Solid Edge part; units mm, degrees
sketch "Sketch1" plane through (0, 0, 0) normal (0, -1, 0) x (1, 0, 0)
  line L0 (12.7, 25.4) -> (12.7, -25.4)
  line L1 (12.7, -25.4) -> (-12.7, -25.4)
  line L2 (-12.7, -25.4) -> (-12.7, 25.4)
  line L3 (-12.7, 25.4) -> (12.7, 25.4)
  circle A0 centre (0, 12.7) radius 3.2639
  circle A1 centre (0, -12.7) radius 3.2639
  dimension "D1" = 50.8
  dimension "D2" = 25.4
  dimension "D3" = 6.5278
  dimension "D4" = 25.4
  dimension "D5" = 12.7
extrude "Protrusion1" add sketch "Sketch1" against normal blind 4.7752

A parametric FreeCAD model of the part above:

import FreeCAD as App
import Part
import Sketcher
Q = App.Units.Quantity

doc = App.newDocument("Part")
body = doc.addObject("PartDesign::Body", "Body")

# Sketch on XZ plane
sketch1 = doc.addObject("Sketcher::SketchObject", "Sketch")
body.addObject(sketch1)
sketch1.AttachmentSupport = (doc.XZ_Plane, [""])
sketch1.MapMode = "FlatFace"
sketch1.addGeometry([
    Part.LineSegment(App.Vector(12.7, -25.4, 0), App.Vector(12.7, 25.4, 0)),  # 0
    Part.LineSegment(App.Vector(12.7, 25.4, 0), App.Vector(-12.7, 25.4, 0)),  # 1
    Part.LineSegment(App.Vector(-12.7, 25.4, 0), App.Vector(-12.7, -25.4, 0)),  # 2
    Part.LineSegment(App.Vector(-12.7, -25.4, 0), App.Vector(12.7, -25.4, 0)),  # 3
    Part.Circle(App.Vector(0, -12.7, 0), App.Vector(0, 0, 1), 3.3),  # 4
    Part.Circle(App.Vector(0, 12.7, 0), App.Vector(0, 0, 1), 3.3),  # 5
], False)
sketch1.addConstraint([
    Sketcher.Constraint("Coincident", 0, 2, 1, 1),
    Sketcher.Constraint("Coincident", 1, 2, 2, 1),
    Sketcher.Constraint("Coincident", 2, 2, 3, 1),
    Sketcher.Constraint("Coincident", 3, 2, 0, 1),
    Sketcher.Constraint("Vertical", 0),
    Sketcher.Constraint("Horizontal", 1),
    Sketcher.Constraint("Vertical", 2),
    Sketcher.Constraint("Horizontal", 3),
    Sketcher.Constraint("Equal", 4, 5),
    Sketcher.Constraint("Symmetric", 4, 3, 5, 3, -1, 1),
    Sketcher.Constraint("Symmetric", 0, 2, 2, 2, -1, 1),
    Sketcher.Constraint("PointOnObject", 4, 3, -2),
    Sketcher.Constraint("DistanceX", 1, 2, 1, 1, Q("1 in")),
    Sketcher.Constraint("DistanceY", 0, 1, 0, 2, Q("2 in")),
    Sketcher.Constraint("Diameter", 4, Q("0.257 in")),
    Sketcher.Constraint("DistanceY", 4, 3, 5, 3, Q("1 in")),
])
pad1 = doc.addObject("PartDesign::Pad", "Pad")
body.addObject(pad1)
pad1.Profile = sketch1
pad1.Length = Q("0.188 in")
pad1.Reversed = True

doc.recompute()
